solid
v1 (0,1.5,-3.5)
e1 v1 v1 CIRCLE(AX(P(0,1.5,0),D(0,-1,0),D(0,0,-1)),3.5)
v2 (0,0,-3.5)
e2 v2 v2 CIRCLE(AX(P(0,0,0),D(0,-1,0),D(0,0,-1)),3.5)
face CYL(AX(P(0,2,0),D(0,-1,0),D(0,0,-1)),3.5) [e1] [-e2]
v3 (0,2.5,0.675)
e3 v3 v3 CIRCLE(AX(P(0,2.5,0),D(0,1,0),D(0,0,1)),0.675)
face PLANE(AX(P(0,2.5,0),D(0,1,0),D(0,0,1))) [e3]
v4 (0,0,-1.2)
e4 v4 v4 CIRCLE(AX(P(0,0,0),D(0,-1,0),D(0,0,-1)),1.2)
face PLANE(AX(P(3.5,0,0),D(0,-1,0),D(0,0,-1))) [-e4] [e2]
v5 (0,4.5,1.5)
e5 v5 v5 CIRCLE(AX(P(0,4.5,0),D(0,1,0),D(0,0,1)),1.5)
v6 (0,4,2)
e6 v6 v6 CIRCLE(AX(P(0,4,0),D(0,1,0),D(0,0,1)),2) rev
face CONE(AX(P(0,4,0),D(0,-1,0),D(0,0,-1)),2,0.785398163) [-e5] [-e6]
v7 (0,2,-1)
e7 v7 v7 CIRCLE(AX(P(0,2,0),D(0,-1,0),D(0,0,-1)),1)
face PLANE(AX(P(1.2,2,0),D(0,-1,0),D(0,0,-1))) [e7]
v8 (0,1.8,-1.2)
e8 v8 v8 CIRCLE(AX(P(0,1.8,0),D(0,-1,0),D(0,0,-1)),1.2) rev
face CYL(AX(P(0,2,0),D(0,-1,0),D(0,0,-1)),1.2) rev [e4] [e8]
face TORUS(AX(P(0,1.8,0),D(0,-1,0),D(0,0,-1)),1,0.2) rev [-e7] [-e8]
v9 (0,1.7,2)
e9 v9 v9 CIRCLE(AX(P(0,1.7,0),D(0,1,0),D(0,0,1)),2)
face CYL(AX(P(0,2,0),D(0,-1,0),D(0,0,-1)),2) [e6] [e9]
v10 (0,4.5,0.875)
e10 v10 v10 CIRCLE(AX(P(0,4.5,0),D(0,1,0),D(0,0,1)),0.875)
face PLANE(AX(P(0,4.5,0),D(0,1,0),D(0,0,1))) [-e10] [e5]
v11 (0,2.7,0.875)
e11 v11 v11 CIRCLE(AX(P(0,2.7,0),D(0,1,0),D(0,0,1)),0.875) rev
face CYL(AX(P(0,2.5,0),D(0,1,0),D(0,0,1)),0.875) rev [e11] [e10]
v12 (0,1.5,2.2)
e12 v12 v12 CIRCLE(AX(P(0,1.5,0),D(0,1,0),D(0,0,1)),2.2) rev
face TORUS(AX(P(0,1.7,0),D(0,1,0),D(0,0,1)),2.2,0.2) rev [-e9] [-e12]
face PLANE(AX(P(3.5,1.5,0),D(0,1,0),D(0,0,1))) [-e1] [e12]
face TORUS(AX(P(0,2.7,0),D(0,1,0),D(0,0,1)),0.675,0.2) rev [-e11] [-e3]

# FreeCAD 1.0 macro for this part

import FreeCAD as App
import Part
import Sketcher
from FreeCAD import Vector


def edges_at(feature, points):
    """Names of the edges that pass closest to the given points."""
    edges = feature.Shape.Edges
    near = lambda p: min(range(len(edges)), key=lambda i: edges[i].distToShape(Part.Vertex(*p))[0])
    return sorted({f"Edge{near(p) + 1}" for p in points})

doc = App.newDocument("Part")
params = doc.addObject("Spreadsheet::Sheet", "Params")
for row, (alias, value) in enumerate([
    ("sketch1_width", "2 mm"),
    ("sketch1_height", "3 mm"),
    ("sketch1_width2", "1.2 mm"),
    ("sketch1_width3", "2.3 mm"),
    ("revolution_angle", "360 deg"),
    ("sketch2_diameter", "1.75 mm"),
    ("pocket1_length", "2 mm"),
    ("chamfer_size", "0.5 mm"),
    ("fillet_radius", "0.2 mm"),
    ("fillet2_radius", "0.2 mm"),
], start=1):
    params.set(f"A{row}", alias)
    params.set(f"B{row}", "=" + value)
    params.setAlias(f"B{row}", alias)

body = doc.addObject("PartDesign::Body", "Body")

sketch1 = doc.addObject("Sketcher::SketchObject", "Sketch")
body.addObject(sketch1)
sketch1.AttachmentSupport = (doc.XY_Plane, [""])
sketch1.MapMode = "FlatFace"
sketch1.addGeometry([
    Part.LineSegment(Vector(0, 4.5, 0), Vector(0, 2, 0)),
    Part.LineSegment(Vector(0, 2, 0), Vector(1.2, 2, 0)),
    Part.LineSegment(Vector(1.2, 2, 0), Vector(1.2, 0, 0)),
    Part.LineSegment(Vector(1.2, 0, 0), Vector(3.5, 0, 0)),
    Part.LineSegment(Vector(3.5, 0, 0), Vector(3.5, 1.5, 0)),
    Part.LineSegment(Vector(3.5, 1.5, 0), Vector(2, 1.5, 0)),
    Part.LineSegment(Vector(2, 1.5, 0), Vector(2, 4.5, 0)),
    Part.LineSegment(Vector(2, 4.5, 0), Vector(0, 4.5, 0)),
], False)
sketch1.addConstraint([
    Sketcher.Constraint("Coincident", 0, 2, 1, 1),
    Sketcher.Constraint("Coincident", 1, 2, 2, 1),
    Sketcher.Constraint("Coincident", 2, 2, 3, 1),
    Sketcher.Constraint("Coincident", 3, 2, 4, 1),
    Sketcher.Constraint("Coincident", 4, 2, 5, 1),
    Sketcher.Constraint("Coincident", 5, 2, 6, 1),
    Sketcher.Constraint("Coincident", 6, 2, 7, 1),
    Sketcher.Constraint("Coincident", 7, 2, 0, 1),
    Sketcher.Constraint("Vertical", 0),
    Sketcher.Constraint("Horizontal", 1),
    Sketcher.Constraint("Vertical", 2),
    Sketcher.Constraint("Horizontal", 3),
    Sketcher.Constraint("Vertical", 4),
    Sketcher.Constraint("Horizontal", 5),
    Sketcher.Constraint("Vertical", 6),
    Sketcher.Constraint("Horizontal", 7),
    Sketcher.Constraint("PointOnObject", 0, 2, -2),
    Sketcher.Constraint("PointOnObject", 2, 2, -1),
    Sketcher.Constraint("Equal", 7, 2),
    Sketcher.Constraint("Equal", 5, 4),
    Sketcher.Constraint("DistanceX", 7, 2, 7, 1, 2.0),
    Sketcher.Constraint("DistanceY", 6, 1, 6, 2, 3.0),
    Sketcher.Constraint("DistanceX", 1, 1, 1, 2, 1.2),
    Sketcher.Constraint("DistanceX", 3, 1, 3, 2, 2.3),
])
sketch1.setExpression("Constraints[20]", "Params.sketch1_width")
sketch1.setExpression("Constraints[21]", "Params.sketch1_height")
sketch1.setExpression("Constraints[22]", "Params.sketch1_width2")
sketch1.setExpression("Constraints[23]", "Params.sketch1_width3")
revolution = doc.addObject("PartDesign::Revolution", "Revolution")
body.addObject(revolution)
revolution.Profile = sketch1
revolution.ReferenceAxis = (sketch1, ["V_Axis"])
revolution.setExpression("Angle", "Params.revolution_angle")

sketch2 = doc.addObject("Sketcher::SketchObject", "Sketch001")
body.addObject(sketch2)
sketch2.AttachmentSupport = (doc.XZ_Plane, [""])
sketch2.MapMode = "FlatFace"
sketch2.AttachmentOffset = App.Placement(Vector(0, 0, -4.5), App.Rotation())
sketch2.addGeometry(Part.Circle(Vector(0, 0, 0), Vector(0, 0, 1), 0.9), False)
sketch2.addConstraint([
    Sketcher.Constraint("Coincident", 0, 3, -1, 1),
    Sketcher.Constraint("Diameter", 0, 1.75),
])
sketch2.setExpression("Constraints[1]", "Params.sketch2_diameter")
pocket1 = doc.addObject("PartDesign::Pocket", "Pocket")
body.addObject(pocket1)
pocket1.Profile = sketch2
pocket1.setExpression("Length", "Params.pocket1_length")
pocket1.Reversed = True
doc.recompute()

chamfer = doc.addObject("PartDesign::Chamfer", "Chamfer")
body.addObject(chamfer)
chamfer.Base = (pocket1, edges_at(pocket1, [(-2, 4.5, 0)]))
chamfer.setExpression("Size", "Params.chamfer_size")
doc.recompute()

fillet = doc.addObject("PartDesign::Fillet", "Fillet")
body.addObject(fillet)
fillet.Base = (chamfer, edges_at(chamfer, [(-2, 1.5, 0)]))
fillet.setExpression("Radius", "Params.fillet_radius")
doc.recompute()

fillet2 = doc.addObject("PartDesign::Fillet", "Fillet001")
body.addObject(fillet2)
fillet2.Base = (fillet, edges_at(fillet, [(-0.875, 2.5, 0), (-1.2, 2, 0)]))
fillet2.setExpression("Radius", "Params.fillet2_radius")

doc.recompute()
